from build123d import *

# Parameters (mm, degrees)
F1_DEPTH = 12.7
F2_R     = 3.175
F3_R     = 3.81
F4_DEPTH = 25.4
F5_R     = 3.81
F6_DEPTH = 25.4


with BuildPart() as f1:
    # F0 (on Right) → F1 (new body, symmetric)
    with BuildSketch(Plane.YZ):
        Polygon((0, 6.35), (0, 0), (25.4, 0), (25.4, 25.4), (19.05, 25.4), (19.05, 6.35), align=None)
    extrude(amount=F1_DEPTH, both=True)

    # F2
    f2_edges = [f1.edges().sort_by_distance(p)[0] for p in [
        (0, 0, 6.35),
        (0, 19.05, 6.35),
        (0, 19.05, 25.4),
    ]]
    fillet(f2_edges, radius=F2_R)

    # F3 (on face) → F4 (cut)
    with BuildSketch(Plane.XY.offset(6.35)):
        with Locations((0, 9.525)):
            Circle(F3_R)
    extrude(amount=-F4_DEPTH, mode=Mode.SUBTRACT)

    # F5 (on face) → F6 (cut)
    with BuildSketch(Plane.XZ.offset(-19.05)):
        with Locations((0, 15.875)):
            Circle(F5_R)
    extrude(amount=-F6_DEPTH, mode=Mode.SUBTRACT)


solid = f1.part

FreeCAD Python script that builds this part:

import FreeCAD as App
import Part
import Sketcher
Q = App.Units.Quantity


def edges_at(feature, points):
    """Names of the edges that pass closest to the given points."""
    edges = feature.Shape.Edges
    near = lambda p: min(range(len(edges)), key=lambda i: edges[i].distToShape(Part.Vertex(*p))[0])
    return sorted({f"Edge{near(p) + 1}" for p in points})


def add_polygon(sketch, points):
    """Adds a closed chain of lines whose ends are joined by coincident constraints."""
    first, n = sketch.GeometryCount, len(points)
    for a, b in zip(points, points[1:] + points[:1]):
        sketch.addGeometry(Part.LineSegment(App.Vector(*a, 0), App.Vector(*b, 0)), False)
    for i in range(n):
        sketch.addConstraint(Sketcher.Constraint("Coincident", first + i, 2, first + (i + 1) % n, 1))

doc = App.newDocument("Part")
body = doc.addObject("PartDesign::Body", "Body")

sketch1 = body.newObject("Sketcher::SketchObject", "Sketch")
sketch1.AttachmentSupport = (doc.getObject("YZ_Plane"), [""])
sketch1.MapMode = "FlatFace"
add_polygon(sketch1, [(0, 6.35), (0, 0), (25.4, 0), (25.4, 25.4), (19.05, 25.4), (19.05, 6.35)])
sketch1.addConstraint([
    Sketcher.Constraint("Vertical", 0),
    Sketcher.Constraint("Horizontal", 1),
    Sketcher.Constraint("Vertical", 2),
    Sketcher.Constraint("Horizontal", 3),
    Sketcher.Constraint("Vertical", 4),
    Sketcher.Constraint("Horizontal", 5),
    Sketcher.Constraint("Coincident", 0, 2, -1, 1),
    Sketcher.Constraint("Equal", 3, 0),
    Sketcher.Constraint("Equal", 1, 2),
    Sketcher.Constraint("DistanceX", 1, 1, 1, 2, Q("1 in")),
    Sketcher.Constraint("DistanceX", 3, 2, 3, 1, Q("0.25 in")),
])
pad1 = body.newObject("PartDesign::Pad", "Pad")
pad1.Profile = sketch1
pad1.Length = Q("1 in")
pad1.Midplane = True
doc.recompute()

fillet = body.newObject("PartDesign::Fillet", "Fillet")
fillet.Base = (pad1, edges_at(pad1, [(0, 0, 6.35), (0, 19.05, 6.35), (0, 19.05, 25.4)]))
fillet.Radius = Q("0.125 in")

sketch2 = body.newObject("Sketcher::SketchObject", "Sketch001")
sketch2.AttachmentSupport = (doc.getObject("XY_Plane"), [""])
sketch2.MapMode = "FlatFace"
sketch2.AttachmentOffset = App.Placement(App.Vector(0, 0, 0.25 * 25.4), App.Rotation())
sketch2.addGeometry(Part.Circle(App.Vector(0, 9.525, 0), App.Vector(0, 0, 1), 3.81), False)
sketch2.addConstraint([
    Sketcher.Constraint("PointOnObject", 0, 3, -2),
    Sketcher.Constraint("Diameter", 0, Q("0.3 in")),
    Sketcher.Constraint("DistanceY", -1, 1, 0, 3, Q("0.375 in")),
])
pocket1 = body.newObject("PartDesign::Pocket", "Pocket")
pocket1.Profile = sketch2
pocket1.Length = Q("1 in")

sketch3 = body.newObject("Sketcher::SketchObject", "Sketch002")
sketch3.AttachmentSupport = (doc.getObject("XZ_Plane"), [""])
sketch3.MapMode = "FlatFace"
sketch3.AttachmentOffset = App.Placement(App.Vector(0, 0, -0.75 * 25.4), App.Rotation())
sketch3.addGeometry(Part.Circle(App.Vector(0, 15.875, 0), App.Vector(0, 0, 1), 3.81), False)
sketch3.addConstraint([
    Sketcher.Constraint("PointOnObject", 0, 3, -2),
    Sketcher.Constraint("Diameter", 0, Q("0.3 in")),
    Sketcher.Constraint("DistanceY", -1, 1, 0, 3, Q("0.625 in")),
])
pocket2 = body.newObject("PartDesign::Pocket", "Pocket001")
pocket2.Profile = sketch3
pocket2.Length = Q("1 in")

doc.recompute()
